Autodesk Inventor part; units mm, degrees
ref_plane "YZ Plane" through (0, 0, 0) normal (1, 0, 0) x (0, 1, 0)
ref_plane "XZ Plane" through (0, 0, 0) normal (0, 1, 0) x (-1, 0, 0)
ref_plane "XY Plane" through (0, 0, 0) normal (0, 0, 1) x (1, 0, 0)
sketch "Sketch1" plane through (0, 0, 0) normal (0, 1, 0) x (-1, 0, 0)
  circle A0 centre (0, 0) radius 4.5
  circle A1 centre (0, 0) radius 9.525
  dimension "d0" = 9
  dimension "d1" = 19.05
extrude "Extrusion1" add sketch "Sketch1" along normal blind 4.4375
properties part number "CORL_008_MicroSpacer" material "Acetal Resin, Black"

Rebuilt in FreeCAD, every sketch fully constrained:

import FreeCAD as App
import Part
import Sketcher
Q = App.Units.Quantity

doc = App.newDocument("Part")
body = doc.addObject("PartDesign::Body", "Body")

sketch1 = body.newObject("Sketcher::SketchObject", "Sketch")
sketch1.AttachmentSupport = (doc.getObject("XZ_Plane"), [""])
sketch1.MapMode = "FlatFace"
sketch1.addGeometry(Part.Circle(App.Vector(0, 0, 0), App.Vector(0, 0, 1), 9.5), False)
sketch1.addGeometry(Part.Circle(App.Vector(0, 0, 0), App.Vector(0, 0, 1), 4.5), False)
sketch1.addConstraint(Sketcher.Constraint("Coincident", 0, 3, -1, 1))
sketch1.addConstraint(Sketcher.Constraint("Coincident", 1, 3, -1, 1))
sketch1.addConstraint(Sketcher.Constraint("Diameter", 1, Q("9 mm")))
sketch1.addConstraint(Sketcher.Constraint("Diameter", 0, Q("19.05 mm")))
pad1 = body.newObject("PartDesign::Pad", "Pad")
pad1.Profile = sketch1
pad1.Length = 4.4375
pad1.Reversed = True

doc.recompute()
